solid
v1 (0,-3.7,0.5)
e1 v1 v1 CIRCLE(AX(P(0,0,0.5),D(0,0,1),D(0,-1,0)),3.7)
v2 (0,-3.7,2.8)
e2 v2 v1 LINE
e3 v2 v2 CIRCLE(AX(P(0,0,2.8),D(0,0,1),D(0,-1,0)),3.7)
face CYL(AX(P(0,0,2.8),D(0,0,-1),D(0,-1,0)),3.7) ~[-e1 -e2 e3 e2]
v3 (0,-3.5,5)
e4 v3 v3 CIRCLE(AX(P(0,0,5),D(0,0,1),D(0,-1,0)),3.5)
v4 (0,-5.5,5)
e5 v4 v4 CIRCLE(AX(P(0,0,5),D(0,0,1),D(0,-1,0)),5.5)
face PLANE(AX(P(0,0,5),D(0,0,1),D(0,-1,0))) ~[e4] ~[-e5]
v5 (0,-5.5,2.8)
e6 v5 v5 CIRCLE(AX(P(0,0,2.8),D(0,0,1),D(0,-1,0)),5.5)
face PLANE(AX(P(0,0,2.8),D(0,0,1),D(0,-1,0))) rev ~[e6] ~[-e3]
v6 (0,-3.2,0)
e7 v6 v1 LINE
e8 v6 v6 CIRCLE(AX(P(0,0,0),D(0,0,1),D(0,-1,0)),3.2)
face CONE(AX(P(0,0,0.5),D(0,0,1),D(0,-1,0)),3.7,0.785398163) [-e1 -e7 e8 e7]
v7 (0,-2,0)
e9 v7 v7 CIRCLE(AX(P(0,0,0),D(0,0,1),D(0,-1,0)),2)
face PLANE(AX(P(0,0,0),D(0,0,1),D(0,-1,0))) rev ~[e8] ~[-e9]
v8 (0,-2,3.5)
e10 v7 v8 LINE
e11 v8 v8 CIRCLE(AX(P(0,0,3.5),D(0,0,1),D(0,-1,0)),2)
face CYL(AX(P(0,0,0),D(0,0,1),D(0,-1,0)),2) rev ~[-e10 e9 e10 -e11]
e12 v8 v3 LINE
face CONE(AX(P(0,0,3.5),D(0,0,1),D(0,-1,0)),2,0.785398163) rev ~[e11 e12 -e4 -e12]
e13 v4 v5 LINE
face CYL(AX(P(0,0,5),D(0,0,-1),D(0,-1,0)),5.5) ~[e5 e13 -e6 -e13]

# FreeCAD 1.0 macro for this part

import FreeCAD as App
import Part
import Sketcher
from FreeCAD import Vector


def edges_at(feature, points):
    """Names of the edges that pass closest to the given points."""
    edges = feature.Shape.Edges
    near = lambda p: min(range(len(edges)), key=lambda i: edges[i].distToShape(Part.Vertex(*p))[0])
    return sorted({f"Edge{near(p) + 1}" for p in points})

doc = App.newDocument("Part")
params = doc.addObject("Spreadsheet::Sheet", "Params")
for row, (alias, value) in enumerate([
    ("sketch1_height", "5 mm"),
    ("sketch1_width", "1.7 mm"),
    ("sketch1_width2", "3.5 mm"),
    ("sketch1_height2", "2.2 mm"),
    ("revolution_angle", "360 deg"),
    ("chamfer_size", "1.5 mm"),
    ("chamfer2_size", "0.5 mm"),
], start=1):
    params.set(f"A{row}", alias)
    params.set(f"B{row}", "=" + value)
    params.setAlias(f"B{row}", alias)

body = doc.addObject("PartDesign::Body", "Body")

sketch1 = body.newObject("Sketcher::SketchObject", "Sketch")
sketch1.AttachmentSupport = (doc.getObject("YZ_Plane"), [""])
sketch1.MapMode = "FlatFace"
sketch1.addGeometry([
    Part.LineSegment(Vector(-3.7, 0, 0), Vector(-2, 0, 0)),
    Part.LineSegment(Vector(-2, 0, 0), Vector(-2, 5, 0)),
    Part.LineSegment(Vector(-2, 5, 0), Vector(-5.5, 5, 0)),
    Part.LineSegment(Vector(-5.5, 5, 0), Vector(-5.5, 2.8, 0)),
    Part.LineSegment(Vector(-5.5, 2.8, 0), Vector(-3.7, 2.8, 0)),
    Part.LineSegment(Vector(-3.7, 2.8, 0), Vector(-3.7, 0, 0)),
], False)
sketch1.addConstraint([
    Sketcher.Constraint("Coincident", 0, 2, 1, 1),
    Sketcher.Constraint("Coincident", 1, 2, 2, 1),
    Sketcher.Constraint("Coincident", 2, 2, 3, 1),
    Sketcher.Constraint("Coincident", 3, 2, 4, 1),
    Sketcher.Constraint("Coincident", 4, 2, 5, 1),
    Sketcher.Constraint("Coincident", 5, 2, 0, 1),
    Sketcher.Constraint("Horizontal", 0),
    Sketcher.Constraint("Vertical", 1),
    Sketcher.Constraint("Horizontal", 2),
    Sketcher.Constraint("Vertical", 3),
    Sketcher.Constraint("Horizontal", 4),
    Sketcher.Constraint("Vertical", 5),
    Sketcher.Constraint("PointOnObject", 0, 2, -1),
    Sketcher.Constraint("DistanceY", 1, 1, 1, 2, 5.0),
    Sketcher.Constraint("DistanceX", 0, 1, 0, 2, 1.7),
    Sketcher.Constraint("DistanceX", 2, 2, 2, 1, 3.5),
    Sketcher.Constraint("DistanceY", 3, 2, 3, 1, 2.2),
    Sketcher.Constraint("DistanceX", 0, 2, -1, 1, 2.0),
])
sketch1.setExpression("Constraints[13]", "Params.sketch1_height")
sketch1.setExpression("Constraints[14]", "Params.sketch1_width")
sketch1.setExpression("Constraints[15]", "Params.sketch1_width2")
sketch1.setExpression("Constraints[16]", "Params.sketch1_height2")
revolution = body.newObject("PartDesign::Revolution", "Revolution")
revolution.Profile = sketch1
revolution.ReferenceAxis = (sketch1, ["V_Axis"])
revolution.setExpression("Angle", "Params.revolution_angle")
doc.recompute()

chamfer = body.newObject("PartDesign::Chamfer", "Chamfer")
chamfer.Base = (revolution, edges_at(revolution, [(0, 2, 5)]))
chamfer.setExpression("Size", "Params.chamfer_size")
doc.recompute()

chamfer2 = body.newObject("PartDesign::Chamfer", "Chamfer001")
chamfer2.Base = (chamfer, edges_at(chamfer, [(0, 3.7, 0)]))
chamfer2.setExpression("Size", "Params.chamfer2_size")

doc.recompute()
